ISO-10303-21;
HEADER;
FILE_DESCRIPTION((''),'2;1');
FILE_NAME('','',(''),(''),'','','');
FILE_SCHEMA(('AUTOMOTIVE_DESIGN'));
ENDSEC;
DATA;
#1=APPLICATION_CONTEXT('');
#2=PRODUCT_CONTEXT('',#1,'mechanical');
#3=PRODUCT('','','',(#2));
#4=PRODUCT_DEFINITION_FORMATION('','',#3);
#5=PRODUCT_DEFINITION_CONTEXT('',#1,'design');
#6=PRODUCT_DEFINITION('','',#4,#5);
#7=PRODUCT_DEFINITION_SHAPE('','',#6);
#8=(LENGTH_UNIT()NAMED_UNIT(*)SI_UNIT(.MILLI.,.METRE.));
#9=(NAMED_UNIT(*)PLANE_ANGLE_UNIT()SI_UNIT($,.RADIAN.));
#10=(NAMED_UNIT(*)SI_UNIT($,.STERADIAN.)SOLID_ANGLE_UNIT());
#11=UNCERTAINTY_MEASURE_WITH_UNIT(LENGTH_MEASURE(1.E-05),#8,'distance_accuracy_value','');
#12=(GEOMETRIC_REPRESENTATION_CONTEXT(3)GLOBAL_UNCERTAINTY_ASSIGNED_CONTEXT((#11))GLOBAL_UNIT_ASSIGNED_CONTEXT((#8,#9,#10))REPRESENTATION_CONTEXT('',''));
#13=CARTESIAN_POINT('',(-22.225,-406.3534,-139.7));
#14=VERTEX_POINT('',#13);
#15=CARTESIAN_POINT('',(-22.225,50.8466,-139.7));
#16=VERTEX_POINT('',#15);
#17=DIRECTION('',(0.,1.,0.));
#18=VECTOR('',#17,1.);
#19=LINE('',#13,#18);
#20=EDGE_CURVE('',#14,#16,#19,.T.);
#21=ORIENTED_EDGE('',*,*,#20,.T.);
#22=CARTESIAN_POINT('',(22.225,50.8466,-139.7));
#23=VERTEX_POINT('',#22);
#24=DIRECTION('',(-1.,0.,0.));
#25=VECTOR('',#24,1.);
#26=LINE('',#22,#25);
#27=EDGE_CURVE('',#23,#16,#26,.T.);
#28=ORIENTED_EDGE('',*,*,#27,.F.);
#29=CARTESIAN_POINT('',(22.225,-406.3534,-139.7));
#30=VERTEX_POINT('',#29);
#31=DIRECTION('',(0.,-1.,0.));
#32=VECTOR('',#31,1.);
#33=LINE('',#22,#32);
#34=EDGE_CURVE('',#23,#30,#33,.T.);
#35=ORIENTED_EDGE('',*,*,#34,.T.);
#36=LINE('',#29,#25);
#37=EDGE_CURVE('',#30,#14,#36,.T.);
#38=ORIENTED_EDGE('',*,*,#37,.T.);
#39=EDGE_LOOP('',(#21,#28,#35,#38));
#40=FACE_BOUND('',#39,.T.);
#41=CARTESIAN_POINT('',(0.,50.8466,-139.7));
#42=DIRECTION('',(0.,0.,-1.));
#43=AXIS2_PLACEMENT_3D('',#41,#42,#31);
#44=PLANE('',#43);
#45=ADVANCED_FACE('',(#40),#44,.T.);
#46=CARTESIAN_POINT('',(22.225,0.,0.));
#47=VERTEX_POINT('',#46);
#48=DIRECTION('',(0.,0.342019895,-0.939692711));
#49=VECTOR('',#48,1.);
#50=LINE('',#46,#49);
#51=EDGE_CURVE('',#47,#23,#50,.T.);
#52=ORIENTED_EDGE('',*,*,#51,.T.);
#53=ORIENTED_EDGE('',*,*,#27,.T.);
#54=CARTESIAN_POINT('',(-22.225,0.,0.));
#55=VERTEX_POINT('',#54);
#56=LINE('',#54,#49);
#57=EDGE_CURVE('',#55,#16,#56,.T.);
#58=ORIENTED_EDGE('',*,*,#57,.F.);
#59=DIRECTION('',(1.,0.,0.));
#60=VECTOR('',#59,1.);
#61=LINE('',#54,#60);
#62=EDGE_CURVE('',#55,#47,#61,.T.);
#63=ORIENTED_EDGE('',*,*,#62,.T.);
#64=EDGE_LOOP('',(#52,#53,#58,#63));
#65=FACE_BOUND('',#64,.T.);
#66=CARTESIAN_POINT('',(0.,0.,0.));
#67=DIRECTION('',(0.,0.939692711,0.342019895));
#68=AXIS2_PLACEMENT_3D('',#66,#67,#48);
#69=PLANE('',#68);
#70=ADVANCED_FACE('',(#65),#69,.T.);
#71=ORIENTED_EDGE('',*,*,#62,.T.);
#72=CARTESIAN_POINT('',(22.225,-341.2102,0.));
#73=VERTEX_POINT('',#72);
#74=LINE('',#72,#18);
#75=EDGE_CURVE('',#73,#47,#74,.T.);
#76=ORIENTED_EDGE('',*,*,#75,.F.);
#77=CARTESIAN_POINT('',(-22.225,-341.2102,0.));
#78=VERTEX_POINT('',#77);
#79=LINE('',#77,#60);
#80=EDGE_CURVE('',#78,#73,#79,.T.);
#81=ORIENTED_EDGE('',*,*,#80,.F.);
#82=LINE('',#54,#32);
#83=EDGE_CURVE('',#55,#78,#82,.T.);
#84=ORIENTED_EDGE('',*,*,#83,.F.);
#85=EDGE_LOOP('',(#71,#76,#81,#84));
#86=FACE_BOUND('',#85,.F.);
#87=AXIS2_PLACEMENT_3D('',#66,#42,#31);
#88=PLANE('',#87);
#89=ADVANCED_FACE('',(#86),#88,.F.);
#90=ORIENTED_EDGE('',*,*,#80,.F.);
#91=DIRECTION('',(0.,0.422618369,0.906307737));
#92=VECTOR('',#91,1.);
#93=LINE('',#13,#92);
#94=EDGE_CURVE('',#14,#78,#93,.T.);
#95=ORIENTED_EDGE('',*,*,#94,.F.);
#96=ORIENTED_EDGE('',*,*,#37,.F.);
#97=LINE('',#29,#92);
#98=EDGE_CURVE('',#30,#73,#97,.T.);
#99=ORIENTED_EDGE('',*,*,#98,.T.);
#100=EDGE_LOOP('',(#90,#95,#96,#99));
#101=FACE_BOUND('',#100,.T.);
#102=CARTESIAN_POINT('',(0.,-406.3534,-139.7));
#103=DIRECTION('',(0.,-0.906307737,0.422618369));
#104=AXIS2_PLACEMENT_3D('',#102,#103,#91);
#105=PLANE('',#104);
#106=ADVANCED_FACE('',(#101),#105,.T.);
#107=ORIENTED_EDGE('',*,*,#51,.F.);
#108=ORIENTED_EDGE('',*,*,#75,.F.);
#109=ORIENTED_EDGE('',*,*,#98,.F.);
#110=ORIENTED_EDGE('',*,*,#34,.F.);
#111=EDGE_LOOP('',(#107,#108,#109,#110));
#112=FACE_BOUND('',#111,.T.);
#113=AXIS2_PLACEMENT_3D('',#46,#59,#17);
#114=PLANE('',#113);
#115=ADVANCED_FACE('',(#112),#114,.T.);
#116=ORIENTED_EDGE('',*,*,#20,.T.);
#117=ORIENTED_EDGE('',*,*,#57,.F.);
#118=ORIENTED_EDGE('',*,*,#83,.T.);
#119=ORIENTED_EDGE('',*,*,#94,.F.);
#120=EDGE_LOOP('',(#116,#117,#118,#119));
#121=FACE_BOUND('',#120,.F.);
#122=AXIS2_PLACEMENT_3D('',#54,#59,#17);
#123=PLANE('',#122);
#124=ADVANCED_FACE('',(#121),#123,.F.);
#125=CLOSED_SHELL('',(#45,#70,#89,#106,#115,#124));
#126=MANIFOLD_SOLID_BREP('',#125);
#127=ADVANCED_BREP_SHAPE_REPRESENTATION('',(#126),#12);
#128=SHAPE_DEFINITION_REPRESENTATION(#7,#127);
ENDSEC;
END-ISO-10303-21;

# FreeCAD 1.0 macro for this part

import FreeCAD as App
import Part
import Sketcher
Q = App.Units.Quantity


def add_polygon(sketch, points):
    """Adds a closed chain of lines whose ends are joined by coincident constraints."""
    first, n = sketch.GeometryCount, len(points)
    for a, b in zip(points, points[1:] + points[:1]):
        sketch.addGeometry(Part.LineSegment(App.Vector(*a, 0), App.Vector(*b, 0)), False)
    for i in range(n):
        sketch.addConstraint(Sketcher.Constraint("Coincident", first + i, 2, first + (i + 1) % n, 1))

doc = App.newDocument("Part")
params = doc.addObject("Spreadsheet::Sheet", "Params")
for row, (alias, value) in enumerate([
    ("sketch1_width", "18 in"),
    ("pad1_length", "1.75 in"),
], start=1):
    params.set(f"A{row}", alias)
    params.set(f"B{row}", "=" + value)
    params.setAlias(f"B{row}", alias)

body = doc.addObject("PartDesign::Body", "Body")

# Sketch on YZ plane
sketch1 = body.newObject("Sketcher::SketchObject", "Sketch")
sketch1.AttachmentSupport = (doc.getObject("YZ_Plane"), [""])
sketch1.MapMode = "FlatFace"
add_polygon(sketch1, [(51, -140), (0, 0), (-341, 0), (-406, -140)])  # lines 0-3
sketch1.addConstraint(Sketcher.Constraint("Horizontal", 1))
sketch1.addConstraint(Sketcher.Constraint("Horizontal", 3))
sketch1.addConstraint(Sketcher.Constraint("Coincident", 0, 2, -1, 1))
sketch1.addConstraint(Sketcher.Constraint("DistanceX", 3, 1, 3, 2, Q("18 in")))
sketch1.addConstraint(Sketcher.Constraint("Angle", 0, Q("110 deg")))
sketch1.addConstraint(Sketcher.Constraint("DistanceY", 2, 2, -1, 1, Q("5.5 in")))
sketch1.addConstraint(Sketcher.Constraint("Angle", 2, Q("-115 deg")))
sketch1.setExpression("Constraints[7]", "Params.sketch1_width")
pad1 = body.newObject("PartDesign::Pad", "Pad")
pad1.Profile = sketch1
pad1.setExpression("Length", "Params.pad1_length")
pad1.Midplane = True

doc.recompute()
